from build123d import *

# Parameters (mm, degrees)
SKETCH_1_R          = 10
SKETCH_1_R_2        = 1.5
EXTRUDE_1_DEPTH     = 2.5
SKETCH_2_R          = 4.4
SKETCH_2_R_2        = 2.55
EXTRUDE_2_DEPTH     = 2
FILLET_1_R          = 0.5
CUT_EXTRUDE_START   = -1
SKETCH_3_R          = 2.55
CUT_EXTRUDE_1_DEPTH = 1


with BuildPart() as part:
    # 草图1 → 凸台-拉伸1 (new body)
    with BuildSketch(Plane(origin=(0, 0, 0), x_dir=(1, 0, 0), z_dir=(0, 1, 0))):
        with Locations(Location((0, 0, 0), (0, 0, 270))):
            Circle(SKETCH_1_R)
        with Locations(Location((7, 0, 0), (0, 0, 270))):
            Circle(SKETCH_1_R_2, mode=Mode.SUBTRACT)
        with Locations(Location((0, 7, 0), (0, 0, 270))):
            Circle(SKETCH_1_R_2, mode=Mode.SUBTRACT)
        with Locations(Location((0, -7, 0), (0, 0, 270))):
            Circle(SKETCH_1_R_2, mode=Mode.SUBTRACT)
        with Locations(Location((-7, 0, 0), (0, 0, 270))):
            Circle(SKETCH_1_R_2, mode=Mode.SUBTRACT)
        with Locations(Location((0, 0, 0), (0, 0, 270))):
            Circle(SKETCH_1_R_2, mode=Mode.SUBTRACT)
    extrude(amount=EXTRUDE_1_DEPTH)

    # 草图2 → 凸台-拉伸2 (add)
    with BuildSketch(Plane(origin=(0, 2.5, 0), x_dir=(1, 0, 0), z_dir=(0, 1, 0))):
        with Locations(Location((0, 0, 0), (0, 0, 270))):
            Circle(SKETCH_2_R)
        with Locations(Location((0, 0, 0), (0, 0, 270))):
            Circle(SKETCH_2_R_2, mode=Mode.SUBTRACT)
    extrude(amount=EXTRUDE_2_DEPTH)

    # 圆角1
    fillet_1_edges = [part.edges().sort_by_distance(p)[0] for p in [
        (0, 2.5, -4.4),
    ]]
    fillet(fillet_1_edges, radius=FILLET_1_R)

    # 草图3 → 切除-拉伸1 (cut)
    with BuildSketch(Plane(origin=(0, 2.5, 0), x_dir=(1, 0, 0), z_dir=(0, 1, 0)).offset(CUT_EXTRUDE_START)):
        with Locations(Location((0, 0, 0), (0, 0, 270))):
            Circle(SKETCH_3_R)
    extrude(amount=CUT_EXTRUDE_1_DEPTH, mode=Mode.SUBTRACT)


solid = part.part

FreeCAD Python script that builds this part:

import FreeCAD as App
import Part
import Sketcher


def edges_at(feature, points):
    """Names of the edges that pass closest to the given points."""
    edges = feature.Shape.Edges
    near = lambda p: min(range(len(edges)), key=lambda i: edges[i].distToShape(Part.Vertex(*p))[0])
    return sorted({f"Edge{near(p) + 1}" for p in points})

doc = App.newDocument("Part")
body = doc.addObject("PartDesign::Body", "Body")

# Sketch on XZ plane
sketch1 = body.newObject("Sketcher::SketchObject", "Sketch")
sketch1.AttachmentSupport = (doc.getObject("XZ_Plane"), [""])
sketch1.MapMode = "FlatFace"
sketch1.addGeometry([
    Part.Circle(App.Vector(0, 0, 0), App.Vector(0, 0, 1), 10),  # 0
    Part.Circle(App.Vector(0, -7, 0), App.Vector(0, 0, 1), 1.5),  # 1
    Part.Circle(App.Vector(-7, 0, 0), App.Vector(0, 0, 1), 1.5),  # 2
    Part.Circle(App.Vector(7, 0, 0), App.Vector(0, 0, 1), 1.5),  # 3
    Part.Circle(App.Vector(0, 0, 0), App.Vector(0, 0, 1), 1.5),  # 4
    Part.Circle(App.Vector(0, 7, 0), App.Vector(0, 0, 1), 1.5),  # 5
], False)
sketch1.addConstraint([
    Sketcher.Constraint("Coincident", 0, 3, -1, 1),
    Sketcher.Constraint("Coincident", 4, 3, -1, 1),
    Sketcher.Constraint("Equal", 1, 2),
    Sketcher.Constraint("Equal", 2, 3),
    Sketcher.Constraint("Equal", 3, 4),
    Sketcher.Constraint("Equal", 4, 5),
    Sketcher.Constraint("Symmetric", 2, 3, 3, 3, -1, 1),
    Sketcher.Constraint("Symmetric", 1, 3, 5, 3, -1, 1),
    Sketcher.Constraint("PointOnObject", 1, 3, -2),
    Sketcher.Constraint("PointOnObject", 2, 3, -1),
    Sketcher.Constraint("Diameter", 0, 20.0),
    Sketcher.Constraint("Diameter", 1, 3.0),
    Sketcher.Constraint("DistanceY", 1, 3, -1, 1, 7.0),
    Sketcher.Constraint("DistanceX", 2, 3, -1, 1, 7.0),
])
pad1 = body.newObject("PartDesign::Pad", "Pad")
pad1.Profile = sketch1
pad1.Length = 2.5
pad1.Reversed = True

# Sketch on XZ plane
sketch2 = body.newObject("Sketcher::SketchObject", "Sketch001")
sketch2.AttachmentSupport = (doc.getObject("XZ_Plane"), [""])
sketch2.MapMode = "FlatFace"
sketch2.AttachmentOffset = App.Placement(App.Vector(0, 0, -2.5), App.Rotation())
sketch2.addGeometry([
    Part.Circle(App.Vector(0, 0, 0), App.Vector(0, 0, 1), 4.4),
    Part.Circle(App.Vector(0, 0, 0), App.Vector(0, 0, 1), 2.55),
], False)
sketch2.addConstraint([
    Sketcher.Constraint("Coincident", 0, 3, -1, 1),
    Sketcher.Constraint("Coincident", 1, 3, -1, 1),
    Sketcher.Constraint("Diameter", 0, 8.8),
    Sketcher.Constraint("Diameter", 1, 5.1),
])
pad2 = body.newObject("PartDesign::Pad", "Pad001")
pad2.Profile = sketch2
pad2.Length = 2
pad2.Reversed = True
doc.recompute()

fillet = body.newObject("PartDesign::Fillet", "Fillet")
fillet.Base = (pad2, edges_at(pad2, [(0, 2.5, -4.4)]))
fillet.Radius = 0.5

# Sketch on XZ plane
sketch3 = body.newObject("Sketcher::SketchObject", "Sketch002")
sketch3.AttachmentSupport = (doc.getObject("XZ_Plane"), [""])
sketch3.MapMode = "FlatFace"
sketch3.AttachmentOffset = App.Placement(App.Vector(0, 0, -1.5), App.Rotation())
sketch3.addGeometry(Part.Circle(App.Vector(0, 0, 0), App.Vector(0, 0, 1), 2.55), False)
sketch3.addConstraint([
    Sketcher.Constraint("Coincident", 0, 3, -1, 1),
    Sketcher.Constraint("Diameter", 0, 5.1),
])
pocket1 = body.newObject("PartDesign::Pocket", "Pocket")
pocket1.Profile = sketch3
pocket1.Length = 1

doc.recompute()
